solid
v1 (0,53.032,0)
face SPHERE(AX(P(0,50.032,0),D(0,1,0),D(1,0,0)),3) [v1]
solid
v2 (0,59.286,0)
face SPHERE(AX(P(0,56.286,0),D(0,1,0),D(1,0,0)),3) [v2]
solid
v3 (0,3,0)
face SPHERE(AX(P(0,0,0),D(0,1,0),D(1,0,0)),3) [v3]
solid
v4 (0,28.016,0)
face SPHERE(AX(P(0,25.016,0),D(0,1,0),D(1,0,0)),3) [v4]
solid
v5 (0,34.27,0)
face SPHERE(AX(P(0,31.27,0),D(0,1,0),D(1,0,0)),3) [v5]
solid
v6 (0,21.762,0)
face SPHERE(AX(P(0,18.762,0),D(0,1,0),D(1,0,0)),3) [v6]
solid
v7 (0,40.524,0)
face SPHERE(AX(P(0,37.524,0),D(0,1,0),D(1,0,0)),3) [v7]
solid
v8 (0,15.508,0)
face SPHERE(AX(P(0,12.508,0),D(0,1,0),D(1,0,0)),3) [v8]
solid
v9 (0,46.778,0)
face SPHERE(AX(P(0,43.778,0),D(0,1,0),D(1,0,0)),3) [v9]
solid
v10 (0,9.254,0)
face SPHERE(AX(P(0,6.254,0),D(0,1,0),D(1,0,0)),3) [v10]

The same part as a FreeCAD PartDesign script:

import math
import FreeCAD as App
import Part
import Sketcher

doc = App.newDocument("Part")
params = doc.addObject("Spreadsheet::Sheet", "Params")
for row, (alias, value) in enumerate([
    ("sketch1_radius", "3 mm"),
    ("revolution_angle", "360 deg"),
], start=1):
    params.set(f"A{row}", alias)
    params.set(f"B{row}", "=" + value)
    params.setAlias(f"B{row}", alias)

body = doc.addObject("PartDesign::Body", "Body")
body.AllowCompound = True

# Sketch on XY plane
sketch1 = body.newObject("Sketcher::SketchObject", "Sketch")
sketch1.AttachmentSupport = (doc.getObject("XY_Plane"), [""])
sketch1.MapMode = "FlatFace"
sketch1.addGeometry([
    Part.LineSegment(App.Vector(0, 3, 0), App.Vector(0, -3, 0)),  # 0
    Part.ArcOfCircle(Part.Circle(App.Vector(0, 0, 0), App.Vector(0, 0, 1), 3), math.radians(-90), math.radians(90)),  # 1
    Part.LineSegment(App.Vector(0, 9.254, 0), App.Vector(0, 3.254, 0)),  # 2
    Part.ArcOfCircle(Part.Circle(App.Vector(0, 6.254, 0), App.Vector(0, 0, 1), 3), math.radians(-90), math.radians(90)),  # 3
    Part.LineSegment(App.Vector(0, 15.508, 0), App.Vector(0, 9.508, 0)),  # 4
    Part.ArcOfCircle(Part.Circle(App.Vector(0, 12.508, 0), App.Vector(0, 0, 1), 3), math.radians(-90), math.radians(90)),  # 5
    Part.LineSegment(App.Vector(0, 21.762, 0), App.Vector(0, 15.762, 0)),  # 6
    Part.ArcOfCircle(Part.Circle(App.Vector(0, 18.762, 0), App.Vector(0, 0, 1), 3), math.radians(-90), math.radians(90)),  # 7
    Part.LineSegment(App.Vector(0, 28.016, 0), App.Vector(0, 22.016, 0)),  # 8
    Part.ArcOfCircle(Part.Circle(App.Vector(0, 25.016, 0), App.Vector(0, 0, 1), 3), math.radians(-90), math.radians(90)),  # 9
    Part.LineSegment(App.Vector(0, 34.27, 0), App.Vector(0, 28.27, 0)),  # 10
    Part.ArcOfCircle(Part.Circle(App.Vector(0, 31.27, 0), App.Vector(0, 0, 1), 3), math.radians(-90), math.radians(90)),  # 11
    Part.LineSegment(App.Vector(0, 40.524, 0), App.Vector(0, 34.524, 0)),  # 12
    Part.ArcOfCircle(Part.Circle(App.Vector(0, 37.524, 0), App.Vector(0, 0, 1), 3), math.radians(-90), math.radians(90)),  # 13
    Part.LineSegment(App.Vector(0, 46.778, 0), App.Vector(0, 40.778, 0)),  # 14
    Part.ArcOfCircle(Part.Circle(App.Vector(0, 43.778, 0), App.Vector(0, 0, 1), 3), math.radians(-90), math.radians(90)),  # 15
    Part.LineSegment(App.Vector(0, 53.032, 0), App.Vector(0, 47.032, 0)),  # 16
    Part.ArcOfCircle(Part.Circle(App.Vector(0, 50.032, 0), App.Vector(0, 0, 1), 3), math.radians(-90), math.radians(90)),  # 17
    Part.LineSegment(App.Vector(0, 59.286, 0), App.Vector(0, 53.286, 0)),  # 18
    Part.ArcOfCircle(Part.Circle(App.Vector(0, 56.286, 0), App.Vector(0, 0, 1), 3), math.radians(-90), math.radians(90)),  # 19
], False)
sketch1.addConstraint([
    Sketcher.Constraint("Coincident", 0, 1, 1, 2),
    Sketcher.Constraint("Coincident", 1, 1, 0, 2),
    Sketcher.Constraint("Coincident", 2, 1, 3, 2),
    Sketcher.Constraint("Coincident", 3, 1, 2, 2),
    Sketcher.Constraint("Coincident", 4, 1, 5, 2),
    Sketcher.Constraint("Coincident", 5, 1, 4, 2),
    Sketcher.Constraint("Coincident", 6, 1, 7, 2),
    Sketcher.Constraint("Coincident", 7, 1, 6, 2),
    Sketcher.Constraint("Coincident", 8, 1, 9, 2),
    Sketcher.Constraint("Coincident", 9, 1, 8, 2),
    Sketcher.Constraint("Coincident", 10, 1, 11, 2),
    Sketcher.Constraint("Coincident", 11, 1, 10, 2),
    Sketcher.Constraint("Coincident", 12, 1, 13, 2),
    Sketcher.Constraint("Coincident", 13, 1, 12, 2),
    Sketcher.Constraint("Coincident", 14, 1, 15, 2),
    Sketcher.Constraint("Coincident", 15, 1, 14, 2),
    Sketcher.Constraint("Coincident", 16, 1, 17, 2),
    Sketcher.Constraint("Coincident", 17, 1, 16, 2),
    Sketcher.Constraint("Coincident", 18, 1, 19, 2),
    Sketcher.Constraint("Coincident", 19, 1, 18, 2),
    Sketcher.Constraint("Vertical", 0),
    Sketcher.Constraint("Vertical", 2),
    Sketcher.Constraint("Vertical", 4),
    Sketcher.Constraint("Vertical", 6),
    Sketcher.Constraint("Vertical", 8),
    Sketcher.Constraint("Vertical", 10),
    Sketcher.Constraint("Vertical", 12),
    Sketcher.Constraint("Vertical", 14),
    Sketcher.Constraint("Vertical", 16),
    Sketcher.Constraint("Vertical", 18),
    Sketcher.Constraint("Coincident", 1, 3, -1, 1),
    Sketcher.Constraint("Equal", 1, 3),
    Sketcher.Constraint("Equal", 3, 5),
    Sketcher.Constraint("Equal", 5, 7),
    Sketcher.Constraint("Equal", 7, 9),
    Sketcher.Constraint("Equal", 9, 11),
    Sketcher.Constraint("Equal", 11, 13),
    Sketcher.Constraint("Equal", 13, 15),
    Sketcher.Constraint("Equal", 15, 17),
    Sketcher.Constraint("Equal", 17, 19),
    Sketcher.Constraint("PointOnObject", 3, 3, -2),
    Sketcher.Constraint("PointOnObject", 5, 3, -2),
    Sketcher.Constraint("PointOnObject", 7, 3, -2),
    Sketcher.Constraint("PointOnObject", 9, 3, -2),
    Sketcher.Constraint("PointOnObject", 11, 3, -2),
    Sketcher.Constraint("PointOnObject", 13, 3, -2),
    Sketcher.Constraint("PointOnObject", 15, 3, -2),
    Sketcher.Constraint("PointOnObject", 17, 3, -2),
    Sketcher.Constraint("PointOnObject", 19, 3, -2),
    Sketcher.Constraint("PointOnObject", 0, 1, -2),
    Sketcher.Constraint("PointOnObject", 2, 1, -2),
    Sketcher.Constraint("PointOnObject", 4, 1, -2),
    Sketcher.Constraint("PointOnObject", 6, 1, -2),
    Sketcher.Constraint("PointOnObject", 8, 1, -2),
    Sketcher.Constraint("PointOnObject", 10, 1, -2),
    Sketcher.Constraint("PointOnObject", 12, 1, -2),
    Sketcher.Constraint("PointOnObject", 14, 1, -2),
    Sketcher.Constraint("PointOnObject", 16, 1, -2),
    Sketcher.Constraint("PointOnObject", 18, 1, -2),
    Sketcher.Constraint("Radius", 1, 3.0),
    Sketcher.Constraint("DistanceY", -1, 1, 11, 3, 31.27),
    Sketcher.Constraint("DistanceY", 3, 3, 13, 3, 31.27),
    Sketcher.Constraint("DistanceY", 5, 3, 15, 3, 31.27),
    Sketcher.Constraint("DistanceY", 7, 3, 17, 3, 31.27),
    Sketcher.Constraint("DistanceY", 9, 3, 19, 3, 31.27),
    Sketcher.Constraint("DistanceY", -1, 1, 3, 3, 6.254),
    Sketcher.Constraint("DistanceY", -1, 1, 5, 3, 12.508),
    Sketcher.Constraint("DistanceY", -1, 1, 7, 3, 18.762),
    Sketcher.Constraint("DistanceY", -1, 1, 9, 3, 25.016),
])
sketch1.setExpression("Constraints[59]", "Params.sketch1_radius")
revolution = body.newObject("PartDesign::Revolution", "Revolution")
revolution.Profile = sketch1
revolution.ReferenceAxis = (sketch1, ["V_Axis"])
revolution.setExpression("Angle", "Params.revolution_angle")

doc.recompute()
